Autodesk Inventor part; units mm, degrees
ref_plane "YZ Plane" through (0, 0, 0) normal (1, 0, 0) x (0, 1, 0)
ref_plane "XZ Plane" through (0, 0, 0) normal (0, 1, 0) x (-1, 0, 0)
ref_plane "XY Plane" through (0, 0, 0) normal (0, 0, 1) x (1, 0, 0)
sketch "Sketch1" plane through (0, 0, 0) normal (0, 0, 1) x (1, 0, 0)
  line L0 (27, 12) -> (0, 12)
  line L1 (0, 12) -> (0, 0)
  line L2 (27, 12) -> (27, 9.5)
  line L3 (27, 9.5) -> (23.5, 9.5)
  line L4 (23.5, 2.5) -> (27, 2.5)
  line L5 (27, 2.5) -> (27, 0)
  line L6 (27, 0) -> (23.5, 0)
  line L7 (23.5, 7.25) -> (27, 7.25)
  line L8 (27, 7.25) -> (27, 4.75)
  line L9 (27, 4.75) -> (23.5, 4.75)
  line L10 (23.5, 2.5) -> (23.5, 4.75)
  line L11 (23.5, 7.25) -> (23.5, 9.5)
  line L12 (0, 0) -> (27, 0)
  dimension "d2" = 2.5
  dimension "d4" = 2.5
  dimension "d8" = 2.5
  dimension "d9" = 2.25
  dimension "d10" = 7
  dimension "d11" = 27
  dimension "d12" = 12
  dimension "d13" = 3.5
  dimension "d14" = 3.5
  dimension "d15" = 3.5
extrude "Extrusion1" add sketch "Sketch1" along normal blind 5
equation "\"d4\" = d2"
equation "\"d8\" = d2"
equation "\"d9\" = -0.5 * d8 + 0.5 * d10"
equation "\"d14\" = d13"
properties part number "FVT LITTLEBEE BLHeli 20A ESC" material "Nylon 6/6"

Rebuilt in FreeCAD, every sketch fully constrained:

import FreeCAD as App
import Part
import Sketcher

V = App.Vector
Q = App.Units.Quantity


def add_polygon(sketch, points):
    """Adds a closed chain of lines whose ends are joined by coincident constraints."""
    first, n = sketch.GeometryCount, len(points)
    for a, b in zip(points, points[1:] + points[:1]):
        sketch.addGeometry(Part.LineSegment(App.Vector(*a, 0), App.Vector(*b, 0)), False)
    for i in range(n):
        sketch.addConstraint(Sketcher.Constraint("Coincident", first + i, 2, first + (i + 1) % n, 1))

doc = App.newDocument("Part")
body = doc.addObject("PartDesign::Body", "Body")

sketch1 = body.newObject("Sketcher::SketchObject", "Sketch")
sketch1.AttachmentSupport = (doc.getObject("XY_Plane"), [""])
sketch1.MapMode = "FlatFace"
add_polygon(sketch1, [(27, 9.5), (27, 12), (0, 12), (0, 0), (27, 0), (27, 2.5), (23.5, 2.5), (23.5, 4.75), (27, 4.75), (27, 7.25), (23.5, 7.25), (23.5, 9.5)])
sketch1.addConstraint([
    Sketcher.Constraint("Vertical", 0),
    Sketcher.Constraint("Horizontal", 1),
    Sketcher.Constraint("Vertical", 2),
    Sketcher.Constraint("Horizontal", 3),
    Sketcher.Constraint("Vertical", 4),
    Sketcher.Constraint("Horizontal", 5),
    Sketcher.Constraint("Vertical", 6),
    Sketcher.Constraint("Horizontal", 7),
    Sketcher.Constraint("Vertical", 8),
    Sketcher.Constraint("Horizontal", 9),
    Sketcher.Constraint("Vertical", 10),
    Sketcher.Constraint("Horizontal", 11),
    Sketcher.Constraint("Coincident", 2, 2, -1, 1),
    Sketcher.Constraint("Vertical", 0, 2, 3, 2),
    Sketcher.Constraint("Vertical", 4, 2, 7, 2),
    Sketcher.Constraint("Vertical", 6, 2, 9, 2),
    Sketcher.Constraint("Equal", 0, 4),
    Sketcher.Constraint("Equal", 4, 8),
    Sketcher.Constraint("Equal", 6, 10),
    Sketcher.Constraint("DistanceX", 1, 2, 1, 1, Q("27 mm")),
    Sketcher.Constraint("DistanceY", 2, 2, 2, 1, Q("12 mm")),
    Sketcher.Constraint("DistanceX", 5, 2, 5, 1, Q("3.5 mm")),
    Sketcher.Constraint("DistanceY", 0, 1, 0, 2, Q("2.5 mm")),
])
pad1 = body.newObject("PartDesign::Pad", "Pad")
pad1.Profile = sketch1
pad1.Length = 5

doc.recompute()
